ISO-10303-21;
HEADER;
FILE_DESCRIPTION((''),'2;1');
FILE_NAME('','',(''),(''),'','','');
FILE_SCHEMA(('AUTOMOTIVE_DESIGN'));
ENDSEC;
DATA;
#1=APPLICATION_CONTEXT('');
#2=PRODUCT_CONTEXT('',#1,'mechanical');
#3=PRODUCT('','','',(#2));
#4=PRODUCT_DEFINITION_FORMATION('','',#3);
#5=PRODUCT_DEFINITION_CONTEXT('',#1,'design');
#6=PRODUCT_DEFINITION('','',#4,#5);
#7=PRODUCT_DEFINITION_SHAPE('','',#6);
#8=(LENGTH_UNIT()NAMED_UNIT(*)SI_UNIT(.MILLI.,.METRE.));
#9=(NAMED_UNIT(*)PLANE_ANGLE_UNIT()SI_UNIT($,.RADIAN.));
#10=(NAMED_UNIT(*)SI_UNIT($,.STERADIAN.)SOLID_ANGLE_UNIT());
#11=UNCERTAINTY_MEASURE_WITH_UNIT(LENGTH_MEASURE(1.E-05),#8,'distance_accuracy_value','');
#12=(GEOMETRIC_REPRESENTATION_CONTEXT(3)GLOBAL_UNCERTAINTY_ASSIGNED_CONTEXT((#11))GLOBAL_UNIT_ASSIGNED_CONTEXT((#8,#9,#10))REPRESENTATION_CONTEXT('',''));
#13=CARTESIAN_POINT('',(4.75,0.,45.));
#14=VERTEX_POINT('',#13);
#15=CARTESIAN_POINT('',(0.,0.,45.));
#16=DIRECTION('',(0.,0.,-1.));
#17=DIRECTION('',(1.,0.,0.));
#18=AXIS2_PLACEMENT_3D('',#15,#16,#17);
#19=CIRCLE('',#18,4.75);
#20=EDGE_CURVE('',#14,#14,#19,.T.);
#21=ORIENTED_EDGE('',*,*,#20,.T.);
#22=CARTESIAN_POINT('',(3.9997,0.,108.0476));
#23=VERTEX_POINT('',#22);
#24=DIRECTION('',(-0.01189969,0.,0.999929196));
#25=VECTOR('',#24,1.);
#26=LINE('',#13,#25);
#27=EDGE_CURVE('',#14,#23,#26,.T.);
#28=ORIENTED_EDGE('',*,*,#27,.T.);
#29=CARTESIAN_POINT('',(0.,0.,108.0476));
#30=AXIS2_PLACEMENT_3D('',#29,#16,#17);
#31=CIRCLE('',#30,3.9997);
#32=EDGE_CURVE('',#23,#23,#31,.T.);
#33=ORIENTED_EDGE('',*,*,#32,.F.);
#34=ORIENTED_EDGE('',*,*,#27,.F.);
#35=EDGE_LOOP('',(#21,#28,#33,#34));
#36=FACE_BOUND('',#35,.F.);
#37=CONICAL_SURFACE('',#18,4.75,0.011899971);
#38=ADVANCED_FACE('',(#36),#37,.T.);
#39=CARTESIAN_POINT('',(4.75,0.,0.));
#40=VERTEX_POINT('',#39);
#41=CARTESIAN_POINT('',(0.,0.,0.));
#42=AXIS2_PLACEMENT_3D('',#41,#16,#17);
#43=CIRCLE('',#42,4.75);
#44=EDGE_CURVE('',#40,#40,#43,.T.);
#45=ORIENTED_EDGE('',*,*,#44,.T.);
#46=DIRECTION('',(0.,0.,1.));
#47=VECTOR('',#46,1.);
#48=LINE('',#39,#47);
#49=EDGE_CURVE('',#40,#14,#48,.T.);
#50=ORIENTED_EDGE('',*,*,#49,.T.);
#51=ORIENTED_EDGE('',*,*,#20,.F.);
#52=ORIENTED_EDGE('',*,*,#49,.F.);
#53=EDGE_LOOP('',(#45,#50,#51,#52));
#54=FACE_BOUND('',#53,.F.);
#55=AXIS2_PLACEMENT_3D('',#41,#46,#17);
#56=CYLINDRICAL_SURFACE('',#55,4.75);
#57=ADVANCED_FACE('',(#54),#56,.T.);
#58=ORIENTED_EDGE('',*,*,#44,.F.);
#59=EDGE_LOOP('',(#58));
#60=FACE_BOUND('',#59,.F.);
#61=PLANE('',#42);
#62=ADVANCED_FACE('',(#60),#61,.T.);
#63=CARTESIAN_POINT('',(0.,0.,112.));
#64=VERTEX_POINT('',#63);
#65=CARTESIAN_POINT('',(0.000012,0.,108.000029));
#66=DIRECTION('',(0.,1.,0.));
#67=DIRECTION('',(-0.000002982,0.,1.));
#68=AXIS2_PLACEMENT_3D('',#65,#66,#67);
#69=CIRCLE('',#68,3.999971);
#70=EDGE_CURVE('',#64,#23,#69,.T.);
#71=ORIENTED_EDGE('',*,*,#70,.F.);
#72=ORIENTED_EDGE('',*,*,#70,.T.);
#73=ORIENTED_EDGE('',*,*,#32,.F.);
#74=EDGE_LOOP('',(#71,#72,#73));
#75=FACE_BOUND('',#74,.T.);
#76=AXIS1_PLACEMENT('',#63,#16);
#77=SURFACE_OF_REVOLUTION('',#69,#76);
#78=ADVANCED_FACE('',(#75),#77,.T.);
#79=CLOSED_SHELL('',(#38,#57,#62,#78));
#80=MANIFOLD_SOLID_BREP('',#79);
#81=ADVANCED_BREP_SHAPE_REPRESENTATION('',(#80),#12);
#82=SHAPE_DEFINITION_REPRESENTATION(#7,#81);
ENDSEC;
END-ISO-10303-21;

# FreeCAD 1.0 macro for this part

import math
import FreeCAD as App
import Part
import Sketcher
Q = App.Units.Quantity

doc = App.newDocument("Part")
body = doc.addObject("PartDesign::Body", "Body")

sketch1 = doc.addObject("Sketcher::SketchObject", "Sketch")
body.addObject(sketch1)
sketch1.AttachmentSupport = (doc.XZ_Plane, [""])
sketch1.MapMode = "FlatFace"
sketch1.addGeometry([
    Part.LineSegment(App.Vector(4.8, 0, 0), App.Vector(0, 0, 0)),
    Part.LineSegment(App.Vector(0, 0, 0), App.Vector(0, 112, 0)),
    Part.ArcOfCircle(Part.Circle(App.Vector(0, 108, 0), App.Vector(0, 0, 1), 4), math.radians(1), math.radians(90)),
    Part.LineSegment(App.Vector(4, 108, 0), App.Vector(4.8, 45, 0)),
    Part.LineSegment(App.Vector(4.8, 45, 0), App.Vector(4.8, 0, 0)),
], False)
sketch1.addConstraint([
    Sketcher.Constraint("Coincident", 0, 2, 1, 1),
    Sketcher.Constraint("Coincident", 1, 2, 2, 2),
    Sketcher.Constraint("Tangent", 2, 1, 3, 1),
    Sketcher.Constraint("Coincident", 3, 2, 4, 1),
    Sketcher.Constraint("Coincident", 4, 2, 0, 1),
    Sketcher.Constraint("Horizontal", 0),
    Sketcher.Constraint("Vertical", 1),
    Sketcher.Constraint("Vertical", 4),
    Sketcher.Constraint("Coincident", 0, 2, -1, 1),
    Sketcher.Constraint("PointOnObject", 2, 3, -2),
    Sketcher.Constraint("Radius", 2, Q("4 mm")),
    Sketcher.Constraint("DistanceY", 1, 1, 1, 2, Q("112 mm")),
    Sketcher.Constraint("DistanceY", 4, 2, 4, 1, Q("45 mm")),
    Sketcher.Constraint("DistanceX", 0, 2, 0, 1, Q("4.75 mm")),
])
revolution = doc.addObject("PartDesign::Revolution", "Revolution")
body.addObject(revolution)
revolution.Profile = sketch1
revolution.ReferenceAxis = (sketch1, ["V_Axis"])
revolution.Angle = 360

doc.recompute()
